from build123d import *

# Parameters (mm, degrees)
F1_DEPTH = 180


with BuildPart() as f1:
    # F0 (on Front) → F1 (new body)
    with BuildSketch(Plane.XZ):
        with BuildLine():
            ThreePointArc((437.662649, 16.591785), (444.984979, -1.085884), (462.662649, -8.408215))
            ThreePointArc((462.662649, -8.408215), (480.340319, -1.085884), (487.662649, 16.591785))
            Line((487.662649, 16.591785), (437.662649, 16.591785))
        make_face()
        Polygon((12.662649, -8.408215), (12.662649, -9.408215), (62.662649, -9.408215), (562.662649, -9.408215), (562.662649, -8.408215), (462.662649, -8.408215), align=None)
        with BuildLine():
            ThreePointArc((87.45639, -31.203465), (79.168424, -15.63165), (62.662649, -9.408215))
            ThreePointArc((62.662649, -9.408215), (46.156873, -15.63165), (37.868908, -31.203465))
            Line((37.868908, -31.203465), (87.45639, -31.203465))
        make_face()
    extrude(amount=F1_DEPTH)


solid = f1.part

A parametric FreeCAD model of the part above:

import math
import FreeCAD as App
import Part
import Sketcher

V = App.Vector
Q = App.Units.Quantity

doc = App.newDocument("Part")
params = doc.addObject("Spreadsheet::Sheet", "Params")
for row, (alias, value) in enumerate([
    ("sketch1_radius", "25 mm"),
    ("sketch1_width", "500 mm"),
    ("sketch1_width2", "100 mm"),
    ("sketch1_height", "1 mm"),
    ("pad1_length", "180 mm"),
], start=1):
    params.set(f"A{row}", alias)
    params.set(f"B{row}", "=" + value)
    params.setAlias(f"B{row}", alias)

body = doc.addObject("PartDesign::Body", "Body")
body.AllowCompound = True

sketch1 = body.newObject("Sketcher::SketchObject", "Sketch")
sketch1.AttachmentSupport = (doc.getObject("XZ_Plane"), [""])
sketch1.MapMode = "FlatFace"
sketch1.addGeometry([
    Part.ArcOfCircle(Part.Circle(V(462.7, 16.6, 0), V(0, 0, 1), 25), math.radians(-180), math.radians(-90)),
    Part.ArcOfCircle(Part.Circle(V(462.7, 16.6, 0), V(0, 0, 1), 25), math.radians(-90), math.radians(0)),
    Part.LineSegment(V(487.7, 16.6, 0), V(437.7, 16.6, 0)),
    Part.LineSegment(V(12.7, -8.4, 0), V(12.7, -9.4, 0)),
    Part.LineSegment(V(12.7, -9.4, 0), V(62.7, -9.4, 0)),
    Part.LineSegment(V(62.7, -9.4, 0), V(562.7, -9.4, 0)),
    Part.LineSegment(V(562.7, -9.4, 0), V(562.7, -8.4, 0)),
    Part.LineSegment(V(562.7, -8.4, 0), V(462.7, -8.4, 0)),
    Part.LineSegment(V(462.7, -8.4, 0), V(12.7, -8.4, 0)),
    Part.ArcOfCircle(Part.Circle(V(62.7, -34.4, 0), V(0, 0, 1), 25), math.radians(7), math.radians(90)),
    Part.ArcOfCircle(Part.Circle(V(62.7, -34.4, 0), V(0, 0, 1), 25), math.radians(90), math.radians(173)),
    Part.LineSegment(V(37.9, -31.2, 0), V(87.5, -31.2, 0)),
], False)
sketch1.addConstraint([
    Sketcher.Constraint("Tangent", 0, 2, 1, 1),
    Sketcher.Constraint("Coincident", 1, 2, 2, 1),
    Sketcher.Constraint("Coincident", 2, 2, 0, 1),
    Sketcher.Constraint("Coincident", 3, 2, 4, 1),
    Sketcher.Constraint("Coincident", 4, 2, 5, 1),
    Sketcher.Constraint("Coincident", 5, 2, 6, 1),
    Sketcher.Constraint("Coincident", 6, 2, 7, 1),
    Sketcher.Constraint("Coincident", 7, 2, 8, 1),
    Sketcher.Constraint("Coincident", 8, 2, 3, 1),
    Sketcher.Constraint("Tangent", 9, 2, 10, 1),
    Sketcher.Constraint("Coincident", 10, 2, 11, 1),
    Sketcher.Constraint("Coincident", 11, 2, 9, 1),
    Sketcher.Constraint("Horizontal", 2),
    Sketcher.Constraint("Vertical", 3),
    Sketcher.Constraint("Horizontal", 4),
    Sketcher.Constraint("Horizontal", 5),
    Sketcher.Constraint("Vertical", 6),
    Sketcher.Constraint("Horizontal", 7),
    Sketcher.Constraint("Horizontal", 8),
    Sketcher.Constraint("Horizontal", 11),
    Sketcher.Constraint("Coincident", 7, 2, 0, 2),
    Sketcher.Constraint("Coincident", 9, 2, 4, 2),
    Sketcher.Constraint("Equal", 0, 1),
    Sketcher.Constraint("Equal", 1, 9),
    Sketcher.Constraint("Equal", 9, 10),
    Sketcher.Constraint("Horizontal", 0, 3, 1, 2),
    Sketcher.Constraint("Vertical", 1, 3, 0, 2),
    Sketcher.Constraint("Vertical", 10, 3, 4, 2),
    Sketcher.Constraint("Equal", 2, 4),
    Sketcher.Constraint("Radius", 0, Q("25 mm")),
    Sketcher.Constraint("DistanceX", 5, 1, 5, 2, Q("500 mm")),
    Sketcher.Constraint("DistanceX", 7, 2, 7, 1, Q("100 mm")),
    Sketcher.Constraint("DistanceY", 3, 2, 3, 1, Q("1 mm")),
    Sketcher.Constraint("DistanceX", 11, 1, 11, 2, Q("49.587482 mm")),
    Sketcher.Constraint("DistanceX", -1, 1, 0, 3, Q("462.662649 mm")),
    Sketcher.Constraint("DistanceY", -1, 1, 0, 3, Q("16.591785 mm")),
])
sketch1.setExpression("Constraints[29]", "Params.sketch1_radius")
sketch1.setExpression("Constraints[30]", "Params.sketch1_width")
sketch1.setExpression("Constraints[31]", "Params.sketch1_width2")
sketch1.setExpression("Constraints[32]", "Params.sketch1_height")
pad1 = body.newObject("PartDesign::Pad", "Pad")
pad1.Profile = sketch1
pad1.setExpression("Length", "Params.pad1_length")

doc.recompute()
